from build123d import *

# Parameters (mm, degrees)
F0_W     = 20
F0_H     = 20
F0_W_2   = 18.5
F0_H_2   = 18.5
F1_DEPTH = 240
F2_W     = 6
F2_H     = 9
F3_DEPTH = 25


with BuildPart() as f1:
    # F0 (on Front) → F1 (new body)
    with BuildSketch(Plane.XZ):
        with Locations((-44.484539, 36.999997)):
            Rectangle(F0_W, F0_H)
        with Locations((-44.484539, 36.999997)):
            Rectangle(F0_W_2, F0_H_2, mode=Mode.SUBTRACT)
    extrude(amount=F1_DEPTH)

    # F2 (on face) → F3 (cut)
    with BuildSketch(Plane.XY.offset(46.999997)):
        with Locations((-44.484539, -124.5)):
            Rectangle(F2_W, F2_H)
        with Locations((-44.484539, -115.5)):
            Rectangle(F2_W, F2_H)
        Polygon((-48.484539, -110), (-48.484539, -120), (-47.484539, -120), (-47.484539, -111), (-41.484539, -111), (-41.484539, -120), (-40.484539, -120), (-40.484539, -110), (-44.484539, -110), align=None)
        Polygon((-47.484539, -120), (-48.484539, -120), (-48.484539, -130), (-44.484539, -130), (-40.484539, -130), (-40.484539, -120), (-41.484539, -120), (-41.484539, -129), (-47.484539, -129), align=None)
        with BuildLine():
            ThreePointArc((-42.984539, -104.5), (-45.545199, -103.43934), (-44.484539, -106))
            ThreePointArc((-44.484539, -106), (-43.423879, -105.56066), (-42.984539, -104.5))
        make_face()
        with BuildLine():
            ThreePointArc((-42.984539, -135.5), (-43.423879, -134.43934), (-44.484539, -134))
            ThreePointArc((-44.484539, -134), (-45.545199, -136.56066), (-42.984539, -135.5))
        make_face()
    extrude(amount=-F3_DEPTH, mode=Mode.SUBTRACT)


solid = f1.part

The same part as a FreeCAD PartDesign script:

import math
import FreeCAD as App
import Part
import Sketcher
from FreeCAD import Vector


def add_polygon(sketch, points):
    """Adds a closed chain of lines whose ends are joined by coincident constraints."""
    first, n = sketch.GeometryCount, len(points)
    for a, b in zip(points, points[1:] + points[:1]):
        sketch.addGeometry(Part.LineSegment(App.Vector(*a, 0), App.Vector(*b, 0)), False)
    for i in range(n):
        sketch.addConstraint(Sketcher.Constraint("Coincident", first + i, 2, first + (i + 1) % n, 1))

doc = App.newDocument("Part")
body = doc.addObject("PartDesign::Body", "Body")

# Sketch on XZ plane
sketch1 = body.newObject("Sketcher::SketchObject", "Sketch")
sketch1.AttachmentSupport = (doc.getObject("XZ_Plane"), [""])
sketch1.MapMode = "FlatFace"
add_polygon(sketch1, [(-54.484539, 46.999997), (-54.484539, 26.999997), (-34.484539, 26.999997), (-34.484539, 46.999997)])  # lines 0-3
add_polygon(sketch1, [(-35.234539, 27.749997), (-53.734539, 27.749997), (-53.734539, 46.249997), (-35.234539, 46.249997)])  # lines 4-7
sketch1.addConstraint([
    Sketcher.Constraint("Vertical", 0),
    Sketcher.Constraint("Horizontal", 1),
    Sketcher.Constraint("Vertical", 2),
    Sketcher.Constraint("Horizontal", 3),
    Sketcher.Constraint("Horizontal", 4),
    Sketcher.Constraint("Vertical", 5),
    Sketcher.Constraint("Horizontal", 6),
    Sketcher.Constraint("Vertical", 7),
    Sketcher.Constraint("Equal", 3, 0),
    Sketcher.Constraint("Equal", 6, 5),
    Sketcher.Constraint("DistanceX", 1, 1, 1, 2, 20.0),
    Sketcher.Constraint("DistanceX", 4, 2, 4, 1, 18.5),
    Sketcher.Constraint("DistanceX", 0, 2, 4, 2, 0.75),
    Sketcher.Constraint("DistanceY", 0, 2, 4, 2, 0.75),
    Sketcher.Constraint("DistanceX", 0, 2, -1, 1, 54.484539),
    Sketcher.Constraint("DistanceY", -1, 1, 0, 2, 26.999997),
])
pad1 = body.newObject("PartDesign::Pad", "Pad")
pad1.Profile = sketch1
pad1.Length = 240

# Sketch on XY plane
sketch2 = body.newObject("Sketcher::SketchObject", "Sketch001")
sketch2.AttachmentSupport = (doc.getObject("XY_Plane"), [""])
sketch2.MapMode = "FlatFace"
sketch2.AttachmentOffset = App.Placement(Vector(0, 0, 46.999997), App.Rotation())
add_polygon(sketch2, [(-40.484539, -110), (-48.484539, -110), (-48.484539, -130), (-40.484539, -130)])  # lines 0-3
sketch2.addGeometry(Part.ArcOfCircle(Part.Circle(Vector(-44.484539, -104.5, 0), Vector(0, 0, 1), 1.5), math.radians(0.000004), math.radians(269.999996)), False)  # 4
sketch2.addGeometry(Part.ArcOfCircle(Part.Circle(Vector(-44.48454, -104.499999, 0), Vector(0, 0, 1), 1.500001), math.radians(-89.999978), math.radians(-0.000022)), False)  # 5
sketch2.addGeometry(Part.ArcOfCircle(Part.Circle(Vector(-44.48454, -135.500001, 0), Vector(0, 0, 1), 1.500001), math.radians(0.000022), math.radians(89.999978)), False)  # 6
sketch2.addGeometry(Part.ArcOfCircle(Part.Circle(Vector(-44.484539, -135.5, 0), Vector(0, 0, 1), 1.5), math.radians(90.000004), math.radians(359.999996)), False)  # 7
sketch2.addConstraint([
    Sketcher.Constraint("Tangent", 4, 1, 5, 2),
    Sketcher.Constraint("Coincident", 5, 1, 4, 2),
    Sketcher.Constraint("Tangent", 6, 1, 7, 2),
    Sketcher.Constraint("Coincident", 7, 1, 6, 2),
    Sketcher.Constraint("Horizontal", 0),
    Sketcher.Constraint("Vertical", 1),
    Sketcher.Constraint("Horizontal", 2),
    Sketcher.Constraint("Vertical", 3),
    Sketcher.Constraint("Equal", 5, 6),
    Sketcher.Constraint("Horizontal", 5, 3, 4, 1),
    Sketcher.Constraint("Horizontal", 7, 3, 6, 1),
    Sketcher.Constraint("Vertical", 5, 3, 6, 3),
    Sketcher.Constraint("Vertical", 7, 3, 5, 1),
    Sketcher.Constraint("Vertical", 5, 1, 7, 1),
    Sketcher.Constraint("Radius", 4, 1.5),
    Sketcher.Constraint("DistanceX", 0, 2, 0, 1, 8.0),
    Sketcher.Constraint("DistanceY", 1, 2, 1, 1, 20.0),
    Sketcher.Constraint("DistanceY", 0, 2, -1, 1, 110.0),
    Sketcher.Constraint("DistanceY", 5, 1, -1, 1, 106.0),
    Sketcher.Constraint("DistanceY", 7, 1, -1, 1, 134.0),
    Sketcher.Constraint("DistanceX", 0, 2, 4, 3, 4.0),
    Sketcher.Constraint("DistanceX", 4, 3, -1, 1, 44.484539),
])
pocket1 = body.newObject("PartDesign::Pocket", "Pocket")
pocket1.Profile = sketch2
pocket1.Length = 25

doc.recompute()
